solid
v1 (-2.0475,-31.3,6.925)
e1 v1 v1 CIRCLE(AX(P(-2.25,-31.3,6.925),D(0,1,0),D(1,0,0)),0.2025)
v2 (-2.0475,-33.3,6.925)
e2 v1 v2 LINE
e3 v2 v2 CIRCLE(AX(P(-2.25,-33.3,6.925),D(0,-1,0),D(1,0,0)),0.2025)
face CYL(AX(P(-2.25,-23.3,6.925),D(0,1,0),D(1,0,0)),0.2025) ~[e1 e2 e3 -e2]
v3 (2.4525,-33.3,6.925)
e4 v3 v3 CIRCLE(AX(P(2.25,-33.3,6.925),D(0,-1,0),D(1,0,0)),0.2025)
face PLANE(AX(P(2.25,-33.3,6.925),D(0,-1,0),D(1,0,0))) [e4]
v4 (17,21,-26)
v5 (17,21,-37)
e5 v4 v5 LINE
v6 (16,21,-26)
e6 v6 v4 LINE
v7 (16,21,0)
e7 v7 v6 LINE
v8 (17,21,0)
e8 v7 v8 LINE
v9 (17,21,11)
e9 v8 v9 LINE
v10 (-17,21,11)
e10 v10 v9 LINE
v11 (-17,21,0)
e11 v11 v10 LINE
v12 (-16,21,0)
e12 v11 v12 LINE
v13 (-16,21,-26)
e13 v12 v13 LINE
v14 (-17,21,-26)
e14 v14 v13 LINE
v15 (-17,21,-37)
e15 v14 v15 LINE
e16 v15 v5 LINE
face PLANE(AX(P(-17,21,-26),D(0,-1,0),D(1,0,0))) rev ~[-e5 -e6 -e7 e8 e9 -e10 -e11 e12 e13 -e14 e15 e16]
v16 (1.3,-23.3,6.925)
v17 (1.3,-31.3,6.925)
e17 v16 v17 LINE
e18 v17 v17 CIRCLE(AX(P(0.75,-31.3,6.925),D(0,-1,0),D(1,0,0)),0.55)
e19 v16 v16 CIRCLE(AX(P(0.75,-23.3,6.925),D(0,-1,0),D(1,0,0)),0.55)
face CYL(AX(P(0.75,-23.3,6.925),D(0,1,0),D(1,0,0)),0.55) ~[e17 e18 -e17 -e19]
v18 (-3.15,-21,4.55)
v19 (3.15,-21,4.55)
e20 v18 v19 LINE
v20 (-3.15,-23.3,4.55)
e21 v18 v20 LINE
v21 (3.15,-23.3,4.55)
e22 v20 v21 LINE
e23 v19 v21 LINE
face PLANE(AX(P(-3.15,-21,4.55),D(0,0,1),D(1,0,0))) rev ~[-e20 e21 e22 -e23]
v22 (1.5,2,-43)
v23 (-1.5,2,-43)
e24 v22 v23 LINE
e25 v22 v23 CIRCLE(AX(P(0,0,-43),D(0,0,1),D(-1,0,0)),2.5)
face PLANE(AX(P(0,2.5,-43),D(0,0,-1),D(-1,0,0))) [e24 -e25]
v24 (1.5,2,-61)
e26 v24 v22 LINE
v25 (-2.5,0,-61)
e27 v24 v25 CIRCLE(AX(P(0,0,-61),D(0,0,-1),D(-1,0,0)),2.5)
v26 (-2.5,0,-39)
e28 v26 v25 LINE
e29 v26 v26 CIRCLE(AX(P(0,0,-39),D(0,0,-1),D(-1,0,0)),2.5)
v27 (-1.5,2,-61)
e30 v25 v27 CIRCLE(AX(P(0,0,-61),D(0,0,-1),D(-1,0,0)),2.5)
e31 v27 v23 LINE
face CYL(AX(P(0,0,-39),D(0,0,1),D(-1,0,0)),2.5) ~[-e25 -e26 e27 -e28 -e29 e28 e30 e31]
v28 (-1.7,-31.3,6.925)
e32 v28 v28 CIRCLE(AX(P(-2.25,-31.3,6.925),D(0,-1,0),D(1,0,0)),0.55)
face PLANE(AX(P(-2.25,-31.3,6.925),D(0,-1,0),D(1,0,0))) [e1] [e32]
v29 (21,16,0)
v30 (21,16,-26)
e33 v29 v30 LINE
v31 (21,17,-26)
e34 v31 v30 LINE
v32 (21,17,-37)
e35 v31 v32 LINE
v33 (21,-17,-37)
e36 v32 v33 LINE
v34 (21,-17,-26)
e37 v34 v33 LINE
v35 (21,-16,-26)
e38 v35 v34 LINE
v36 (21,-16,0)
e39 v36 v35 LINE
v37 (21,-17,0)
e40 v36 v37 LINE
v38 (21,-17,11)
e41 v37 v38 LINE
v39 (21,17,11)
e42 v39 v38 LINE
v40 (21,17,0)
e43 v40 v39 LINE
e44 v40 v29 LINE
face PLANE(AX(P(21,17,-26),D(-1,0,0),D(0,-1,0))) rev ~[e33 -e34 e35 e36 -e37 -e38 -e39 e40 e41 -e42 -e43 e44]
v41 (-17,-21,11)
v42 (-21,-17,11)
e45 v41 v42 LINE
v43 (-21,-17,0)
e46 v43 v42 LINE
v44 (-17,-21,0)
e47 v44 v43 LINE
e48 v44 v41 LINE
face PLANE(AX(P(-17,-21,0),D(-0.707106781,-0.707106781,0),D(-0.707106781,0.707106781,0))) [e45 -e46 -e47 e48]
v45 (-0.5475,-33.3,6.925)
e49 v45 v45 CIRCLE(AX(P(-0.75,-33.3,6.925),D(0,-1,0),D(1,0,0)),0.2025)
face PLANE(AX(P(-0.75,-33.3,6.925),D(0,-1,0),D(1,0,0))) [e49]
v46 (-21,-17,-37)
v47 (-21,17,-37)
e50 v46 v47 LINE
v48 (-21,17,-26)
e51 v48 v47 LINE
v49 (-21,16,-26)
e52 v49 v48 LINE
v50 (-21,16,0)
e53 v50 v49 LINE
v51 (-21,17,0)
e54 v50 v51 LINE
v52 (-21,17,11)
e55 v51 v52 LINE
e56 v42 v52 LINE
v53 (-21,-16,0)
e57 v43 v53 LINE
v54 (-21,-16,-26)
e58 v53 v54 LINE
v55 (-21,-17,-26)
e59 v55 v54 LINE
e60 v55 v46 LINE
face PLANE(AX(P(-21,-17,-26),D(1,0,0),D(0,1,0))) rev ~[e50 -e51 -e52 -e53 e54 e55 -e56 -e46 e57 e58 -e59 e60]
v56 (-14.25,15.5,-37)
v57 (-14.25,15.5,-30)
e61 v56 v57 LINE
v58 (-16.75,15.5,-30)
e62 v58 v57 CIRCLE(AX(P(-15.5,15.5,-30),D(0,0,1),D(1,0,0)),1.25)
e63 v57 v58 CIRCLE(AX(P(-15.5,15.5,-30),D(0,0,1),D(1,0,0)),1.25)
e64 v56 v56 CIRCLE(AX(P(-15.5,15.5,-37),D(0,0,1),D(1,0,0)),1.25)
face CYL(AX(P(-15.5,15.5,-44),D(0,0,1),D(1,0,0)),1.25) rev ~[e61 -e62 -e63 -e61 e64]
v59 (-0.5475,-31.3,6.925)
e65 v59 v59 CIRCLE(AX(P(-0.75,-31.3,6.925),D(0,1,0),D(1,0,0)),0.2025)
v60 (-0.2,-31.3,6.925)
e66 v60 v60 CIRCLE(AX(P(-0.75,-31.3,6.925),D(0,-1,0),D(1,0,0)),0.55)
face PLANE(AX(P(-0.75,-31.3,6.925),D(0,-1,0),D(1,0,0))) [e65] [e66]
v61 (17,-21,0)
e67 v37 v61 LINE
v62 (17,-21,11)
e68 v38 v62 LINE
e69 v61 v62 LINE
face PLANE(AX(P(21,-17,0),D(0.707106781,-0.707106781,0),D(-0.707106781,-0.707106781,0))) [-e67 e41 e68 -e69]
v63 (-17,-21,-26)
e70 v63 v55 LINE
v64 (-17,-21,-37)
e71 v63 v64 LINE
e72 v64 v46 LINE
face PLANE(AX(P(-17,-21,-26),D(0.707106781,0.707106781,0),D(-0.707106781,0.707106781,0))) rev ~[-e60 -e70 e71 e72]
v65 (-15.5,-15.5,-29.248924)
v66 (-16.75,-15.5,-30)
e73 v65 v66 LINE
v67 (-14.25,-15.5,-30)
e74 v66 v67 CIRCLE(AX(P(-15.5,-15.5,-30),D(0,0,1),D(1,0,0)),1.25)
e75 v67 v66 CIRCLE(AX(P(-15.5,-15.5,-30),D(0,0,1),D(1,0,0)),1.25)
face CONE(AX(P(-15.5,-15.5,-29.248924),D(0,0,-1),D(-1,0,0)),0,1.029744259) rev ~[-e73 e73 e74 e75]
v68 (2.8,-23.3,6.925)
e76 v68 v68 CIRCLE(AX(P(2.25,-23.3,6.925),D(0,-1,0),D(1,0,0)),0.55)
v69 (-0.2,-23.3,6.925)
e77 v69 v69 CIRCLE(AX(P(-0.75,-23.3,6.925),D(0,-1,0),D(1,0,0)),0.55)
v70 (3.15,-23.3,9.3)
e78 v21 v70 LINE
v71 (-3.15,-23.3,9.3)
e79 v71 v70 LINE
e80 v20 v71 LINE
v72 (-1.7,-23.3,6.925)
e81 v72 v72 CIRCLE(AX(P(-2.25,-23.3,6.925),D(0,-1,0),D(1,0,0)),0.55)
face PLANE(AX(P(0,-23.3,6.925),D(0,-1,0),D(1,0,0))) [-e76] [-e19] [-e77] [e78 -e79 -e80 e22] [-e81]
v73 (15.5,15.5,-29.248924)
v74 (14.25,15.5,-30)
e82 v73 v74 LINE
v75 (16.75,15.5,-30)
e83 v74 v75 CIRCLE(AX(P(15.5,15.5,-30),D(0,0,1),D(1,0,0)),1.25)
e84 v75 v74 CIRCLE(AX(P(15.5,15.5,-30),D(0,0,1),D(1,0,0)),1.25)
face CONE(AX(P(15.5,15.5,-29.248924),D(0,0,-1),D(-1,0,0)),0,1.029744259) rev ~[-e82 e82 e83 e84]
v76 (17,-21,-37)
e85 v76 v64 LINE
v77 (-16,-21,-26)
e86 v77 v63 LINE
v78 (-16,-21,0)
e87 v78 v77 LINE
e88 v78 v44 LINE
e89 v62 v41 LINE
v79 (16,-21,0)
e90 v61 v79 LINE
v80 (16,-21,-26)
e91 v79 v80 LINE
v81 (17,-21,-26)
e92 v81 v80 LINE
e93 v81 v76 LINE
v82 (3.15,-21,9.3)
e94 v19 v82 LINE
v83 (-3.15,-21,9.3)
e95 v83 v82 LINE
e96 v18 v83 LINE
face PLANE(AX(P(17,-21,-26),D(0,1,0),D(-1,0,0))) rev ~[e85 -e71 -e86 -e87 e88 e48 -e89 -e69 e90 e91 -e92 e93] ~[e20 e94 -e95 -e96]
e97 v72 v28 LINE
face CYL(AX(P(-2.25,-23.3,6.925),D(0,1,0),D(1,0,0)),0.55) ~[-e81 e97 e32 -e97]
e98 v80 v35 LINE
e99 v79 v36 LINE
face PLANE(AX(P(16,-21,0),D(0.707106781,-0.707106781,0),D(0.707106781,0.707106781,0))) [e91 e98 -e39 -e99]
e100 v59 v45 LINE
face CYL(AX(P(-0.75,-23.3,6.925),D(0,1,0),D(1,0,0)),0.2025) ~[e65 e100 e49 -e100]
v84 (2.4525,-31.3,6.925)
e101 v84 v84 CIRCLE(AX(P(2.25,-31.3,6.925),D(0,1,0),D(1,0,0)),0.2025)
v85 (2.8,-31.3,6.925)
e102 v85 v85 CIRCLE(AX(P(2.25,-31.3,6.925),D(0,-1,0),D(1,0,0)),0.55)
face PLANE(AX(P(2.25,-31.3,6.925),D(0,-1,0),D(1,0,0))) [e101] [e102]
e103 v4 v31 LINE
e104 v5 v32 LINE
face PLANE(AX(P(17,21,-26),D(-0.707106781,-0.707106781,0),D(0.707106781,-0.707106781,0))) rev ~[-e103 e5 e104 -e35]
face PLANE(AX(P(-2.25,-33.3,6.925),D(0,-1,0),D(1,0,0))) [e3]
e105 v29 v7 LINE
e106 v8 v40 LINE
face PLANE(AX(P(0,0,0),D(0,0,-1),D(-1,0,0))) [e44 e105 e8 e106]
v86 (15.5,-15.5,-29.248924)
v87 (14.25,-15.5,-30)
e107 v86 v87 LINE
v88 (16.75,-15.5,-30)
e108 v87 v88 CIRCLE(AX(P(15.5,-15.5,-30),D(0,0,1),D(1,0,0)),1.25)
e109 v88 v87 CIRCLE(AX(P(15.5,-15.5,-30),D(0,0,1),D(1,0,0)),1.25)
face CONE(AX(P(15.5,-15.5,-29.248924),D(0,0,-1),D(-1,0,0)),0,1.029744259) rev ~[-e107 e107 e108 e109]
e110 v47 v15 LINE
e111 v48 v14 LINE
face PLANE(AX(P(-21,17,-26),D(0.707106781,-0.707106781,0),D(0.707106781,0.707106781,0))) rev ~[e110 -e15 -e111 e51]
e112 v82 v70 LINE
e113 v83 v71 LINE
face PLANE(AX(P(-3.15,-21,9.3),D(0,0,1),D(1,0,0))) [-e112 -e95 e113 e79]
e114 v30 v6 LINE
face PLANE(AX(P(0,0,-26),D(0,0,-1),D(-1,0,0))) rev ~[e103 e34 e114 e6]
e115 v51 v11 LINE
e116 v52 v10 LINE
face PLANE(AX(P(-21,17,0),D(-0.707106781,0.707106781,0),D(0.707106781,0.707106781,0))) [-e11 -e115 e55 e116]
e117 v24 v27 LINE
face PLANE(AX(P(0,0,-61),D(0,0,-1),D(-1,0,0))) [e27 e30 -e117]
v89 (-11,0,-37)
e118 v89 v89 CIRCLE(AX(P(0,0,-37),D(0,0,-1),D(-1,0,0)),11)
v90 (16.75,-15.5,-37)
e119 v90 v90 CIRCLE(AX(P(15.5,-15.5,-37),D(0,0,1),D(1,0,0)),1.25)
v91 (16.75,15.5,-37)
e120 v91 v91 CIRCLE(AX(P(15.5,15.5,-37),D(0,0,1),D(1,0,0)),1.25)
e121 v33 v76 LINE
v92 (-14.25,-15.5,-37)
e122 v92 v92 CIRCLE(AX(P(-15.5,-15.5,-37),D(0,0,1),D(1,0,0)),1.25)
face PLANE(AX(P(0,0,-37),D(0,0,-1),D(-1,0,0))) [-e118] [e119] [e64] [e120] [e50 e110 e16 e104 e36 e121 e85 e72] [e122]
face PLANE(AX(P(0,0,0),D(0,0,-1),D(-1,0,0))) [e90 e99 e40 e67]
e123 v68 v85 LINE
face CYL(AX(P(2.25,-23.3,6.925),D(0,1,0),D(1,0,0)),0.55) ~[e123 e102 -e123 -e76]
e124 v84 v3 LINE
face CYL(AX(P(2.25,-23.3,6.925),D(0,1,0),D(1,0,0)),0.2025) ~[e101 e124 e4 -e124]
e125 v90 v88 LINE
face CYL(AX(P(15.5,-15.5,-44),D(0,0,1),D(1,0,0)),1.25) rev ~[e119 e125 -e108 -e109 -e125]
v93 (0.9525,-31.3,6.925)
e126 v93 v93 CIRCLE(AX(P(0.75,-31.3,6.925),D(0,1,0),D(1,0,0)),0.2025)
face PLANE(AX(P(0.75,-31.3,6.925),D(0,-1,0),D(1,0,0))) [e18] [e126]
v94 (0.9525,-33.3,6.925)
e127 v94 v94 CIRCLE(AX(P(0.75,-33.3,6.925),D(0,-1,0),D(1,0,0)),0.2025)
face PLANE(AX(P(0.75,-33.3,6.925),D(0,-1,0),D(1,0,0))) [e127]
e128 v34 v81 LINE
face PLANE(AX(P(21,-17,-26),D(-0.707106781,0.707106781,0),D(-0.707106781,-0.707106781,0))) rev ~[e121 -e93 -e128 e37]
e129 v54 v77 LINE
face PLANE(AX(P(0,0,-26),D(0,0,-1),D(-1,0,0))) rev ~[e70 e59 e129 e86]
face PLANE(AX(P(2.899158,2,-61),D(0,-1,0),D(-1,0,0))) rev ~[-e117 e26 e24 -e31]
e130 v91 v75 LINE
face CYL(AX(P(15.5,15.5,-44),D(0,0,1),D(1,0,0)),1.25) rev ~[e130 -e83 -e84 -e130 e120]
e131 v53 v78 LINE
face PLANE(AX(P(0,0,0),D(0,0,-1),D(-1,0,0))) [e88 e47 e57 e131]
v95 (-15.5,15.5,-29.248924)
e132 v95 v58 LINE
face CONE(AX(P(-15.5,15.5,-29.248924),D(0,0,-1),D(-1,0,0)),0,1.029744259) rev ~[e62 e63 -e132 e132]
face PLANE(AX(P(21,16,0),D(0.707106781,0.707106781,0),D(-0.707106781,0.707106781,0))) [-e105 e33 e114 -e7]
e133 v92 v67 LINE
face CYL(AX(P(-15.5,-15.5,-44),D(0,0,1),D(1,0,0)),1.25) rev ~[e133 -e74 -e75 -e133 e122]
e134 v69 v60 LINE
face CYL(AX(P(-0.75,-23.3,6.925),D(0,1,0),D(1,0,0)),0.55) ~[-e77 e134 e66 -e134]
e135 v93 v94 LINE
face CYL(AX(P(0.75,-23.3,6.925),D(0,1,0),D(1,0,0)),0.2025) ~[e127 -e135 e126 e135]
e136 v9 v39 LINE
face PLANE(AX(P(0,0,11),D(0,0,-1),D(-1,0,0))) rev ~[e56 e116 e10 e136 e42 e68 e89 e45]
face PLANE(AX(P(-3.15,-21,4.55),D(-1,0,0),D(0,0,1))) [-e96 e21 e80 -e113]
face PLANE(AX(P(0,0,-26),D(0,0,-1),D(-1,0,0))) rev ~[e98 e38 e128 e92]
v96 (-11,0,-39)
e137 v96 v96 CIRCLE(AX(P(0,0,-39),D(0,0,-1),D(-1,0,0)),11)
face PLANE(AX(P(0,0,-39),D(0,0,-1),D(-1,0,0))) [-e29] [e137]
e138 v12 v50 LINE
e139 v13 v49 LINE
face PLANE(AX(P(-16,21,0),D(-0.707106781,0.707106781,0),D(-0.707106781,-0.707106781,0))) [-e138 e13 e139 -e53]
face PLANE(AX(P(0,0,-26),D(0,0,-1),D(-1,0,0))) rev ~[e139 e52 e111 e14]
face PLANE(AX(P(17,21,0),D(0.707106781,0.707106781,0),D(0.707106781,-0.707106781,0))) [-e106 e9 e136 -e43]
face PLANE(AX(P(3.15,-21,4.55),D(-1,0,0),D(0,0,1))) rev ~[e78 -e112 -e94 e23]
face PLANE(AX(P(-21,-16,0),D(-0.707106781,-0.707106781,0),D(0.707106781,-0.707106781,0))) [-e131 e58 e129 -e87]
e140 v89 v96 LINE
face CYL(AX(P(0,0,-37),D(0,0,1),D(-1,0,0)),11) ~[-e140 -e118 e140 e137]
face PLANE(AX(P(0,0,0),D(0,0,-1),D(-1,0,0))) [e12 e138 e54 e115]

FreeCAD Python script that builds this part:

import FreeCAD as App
import Part
import Sketcher

V = App.Vector


def add_polygon(sketch, points):
    """Adds a closed chain of lines whose ends are joined by coincident constraints."""
    first, n = sketch.GeometryCount, len(points)
    for a, b in zip(points, points[1:] + points[:1]):
        sketch.addGeometry(Part.LineSegment(App.Vector(*a, 0), App.Vector(*b, 0)), False)
    for i in range(n):
        sketch.addConstraint(Sketcher.Constraint("Coincident", first + i, 2, first + (i + 1) % n, 1))

doc = App.newDocument("Part")
body = doc.addObject("PartDesign::Body", "Body")

sketch1 = body.newObject("Sketcher::SketchObject", "Sketch")
sketch1.AttachmentSupport = (doc.getObject("XY_Plane"), [""])
sketch1.MapMode = "FlatFace"
add_polygon(sketch1, [(21, 17), (17, 21), (-17, 21), (-21, 17), (-21, -17), (-17, -21), (17, -21), (21, -17)])
sketch1.addConstraint([
    Sketcher.Constraint("Horizontal", 1),
    Sketcher.Constraint("Vertical", 3),
    Sketcher.Constraint("Horizontal", 5),
    Sketcher.Constraint("Vertical", 7),
    Sketcher.Constraint("Symmetric", 0, 2, 4, 2, -1, 1),
    Sketcher.Constraint("Symmetric", 2, 2, 6, 2, -1, 1),
    Sketcher.Constraint("Perpendicular", 0, 2),
    Sketcher.Constraint("Perpendicular", 2, 4),
    Sketcher.Constraint("Perpendicular", 4, 6),
    Sketcher.Constraint("Horizontal", 3, 2, 6, 2),
    Sketcher.Constraint("Vertical", 1, 2, 4, 2),
    Sketcher.Constraint("Equal", 5, 3),
    Sketcher.Constraint("DistanceX", 1, 2, 1, 1, 34.0),
    Sketcher.Constraint("DistanceY", -1, 1, 0, 2, 21.0),
])
pad1 = body.newObject("PartDesign::Pad", "Pad")
pad1.Profile = sketch1
pad1.Length = 11

sketch2 = body.newObject("Sketcher::SketchObject", "Sketch001")
sketch2.AttachmentSupport = (doc.getObject("XY_Plane"), [""])
sketch2.MapMode = "FlatFace"
add_polygon(sketch2, [(-16, 21), (16, 21), (21, 16), (21, -16), (16, -21), (-16, -21), (-21, -16), (-21, 16)])
sketch2.addConstraint([
    Sketcher.Constraint("Horizontal", 0),
    Sketcher.Constraint("Vertical", 2),
    Sketcher.Constraint("Horizontal", 4),
    Sketcher.Constraint("Vertical", 6),
    Sketcher.Constraint("Symmetric", 0, 2, 4, 2, -1, 1),
    Sketcher.Constraint("Symmetric", 1, 2, 5, 2, -1, 1),
    Sketcher.Constraint("Perpendicular", 1, 3),
    Sketcher.Constraint("Perpendicular", 5, 7),
    Sketcher.Constraint("Horizontal", 2, 2, 5, 2),
    Sketcher.Constraint("Horizontal", 1, 2, 6, 2),
    Sketcher.Constraint("Vertical", 0, 2, 3, 2),
    Sketcher.Constraint("Equal", 4, 2),
    Sketcher.Constraint("DistanceX", 0, 1, 0, 2, 32.0),
    Sketcher.Constraint("DistanceY", -1, 1, 0, 2, 21.0),
])
pad2 = body.newObject("PartDesign::Pad", "Pad001")
pad2.Profile = sketch2
pad2.Length = 26
pad2.Reversed = True

sketch3 = body.newObject("Sketcher::SketchObject", "Sketch002")
sketch3.AttachmentSupport = (doc.getObject("XY_Plane"), [""])
sketch3.MapMode = "FlatFace"
sketch3.AttachmentOffset = App.Placement(V(0, 0, -26), App.Rotation())
add_polygon(sketch3, [(17, 21), (21, 17), (21, -17), (17, -21), (-17, -21), (-21, -17), (-21, 17), (-17, 21)])
sketch3.addConstraint([
    Sketcher.Constraint("Vertical", 1),
    Sketcher.Constraint("Horizontal", 3),
    Sketcher.Constraint("Vertical", 5),
    Sketcher.Constraint("Horizontal", 7),
    Sketcher.Constraint("Symmetric", 0, 2, 4, 2, -1, 1),
    Sketcher.Constraint("Symmetric", 2, 2, 6, 2, -1, 1),
    Sketcher.Constraint("Perpendicular", 0, 2),
    Sketcher.Constraint("Perpendicular", 2, 4),
    Sketcher.Constraint("Perpendicular", 4, 6),
    Sketcher.Constraint("Horizontal", 1, 2, 4, 2),
    Sketcher.Constraint("Vertical", 3, 2, 6, 2),
    Sketcher.Constraint("Equal", 7, 1),
    Sketcher.Constraint("DistanceX", 3, 2, 3, 1, 34.0),
    Sketcher.Constraint("DistanceX", -1, 1, 0, 2, 21.0),
])
pad3 = body.newObject("PartDesign::Pad", "Pad002")
pad3.Profile = sketch3
pad3.Length = 11
pad3.Reversed = True

sketch4 = body.newObject("Sketcher::SketchObject", "Sketch003")
sketch4.AttachmentSupport = (doc.getObject("XY_Plane"), [""])
sketch4.MapMode = "FlatFace"
sketch4.AttachmentOffset = App.Placement(V(0, 0, -37), App.Rotation())
sketch4.addGeometry(Part.Circle(V(0, 0, 0), V(0, 0, 1), 11), False)
sketch4.addConstraint([
    Sketcher.Constraint("Coincident", 0, 3, -1, 1),
    Sketcher.Constraint("Diameter", 0, 22.0),
])
pad4 = body.newObject("PartDesign::Pad", "Pad003")
pad4.Profile = sketch4
pad4.Length = 2
pad4.Reversed = True

sketch5 = body.newObject("Sketcher::SketchObject", "Sketch004")
sketch5.AttachmentSupport = (doc.getObject("XY_Plane"), [""])
sketch5.MapMode = "FlatFace"
sketch5.AttachmentOffset = App.Placement(V(0, 0, -39), App.Rotation())
sketch5.addGeometry(Part.Circle(V(0, 0, 0), V(0, 0, 1), 2.5), False)
sketch5.addConstraint([
    Sketcher.Constraint("Coincident", 0, 3, -1, 1),
    Sketcher.Constraint("Diameter", 0, 5.0),
])
pad5 = body.newObject("PartDesign::Pad", "Pad004")
pad5.Profile = sketch5
pad5.Length = 22
pad5.Reversed = True

sketch6 = body.newObject("Sketcher::SketchObject", "Sketch005")
sketch6.AttachmentSupport = (doc.getObject("XY_Plane"), [""])
sketch6.MapMode = "FlatFace"
sketch6.AttachmentOffset = App.Placement(V(0, 0, -61), App.Rotation())
add_polygon(sketch6, [(2.9, 3), (2.9, 2), (-2.9, 2), (-2.9, 3)])
sketch6.addConstraint([
    Sketcher.Constraint("Vertical", 0),
    Sketcher.Constraint("Horizontal", 1),
    Sketcher.Constraint("Vertical", 2),
    Sketcher.Constraint("Horizontal", 3),
    Sketcher.Constraint("DistanceY", 0, 2, 0, 1, 1.0),
    Sketcher.Constraint("DistanceY", -1, 1, 0, 2, 2.0),
    Sketcher.Constraint("DistanceX", 1, 2, 1, 1, 5.798316),
    Sketcher.Constraint("DistanceX", -1, 1, 0, 2, 2.899158),
])
pocket1 = body.newObject("PartDesign::Pocket", "Pocket")
pocket1.Profile = sketch6
pocket1.Length = 18
pocket1.Reversed = True

sketch7 = body.newObject("Sketcher::SketchObject", "Sketch006")
sketch7.AttachmentSupport = (doc.getObject("XY_Plane"), [""])
sketch7.MapMode = "FlatFace"
sketch7.AttachmentOffset = App.Placement(V(0, 0, -37), App.Rotation())
sketch7.addGeometry([
    Part.Circle(V(15.5, 15.5, 0), V(0, 0, 1), 1.2),
    Part.Circle(V(-15.5, 15.5, 0), V(0, 0, 1), 1.2),
    Part.Circle(V(-15.5, -15.5, 0), V(0, 0, 1), 1.2),
    Part.Circle(V(15.5, -15.5, 0), V(0, 0, 1), 1.2),
], False)
sketch7.addConstraint([
    Sketcher.Constraint("Equal", 0, 1),
    Sketcher.Constraint("Equal", 1, 2),
    Sketcher.Constraint("Equal", 2, 3),
    Sketcher.Constraint("Symmetric", 0, 3, 2, 3, -1, 1),
    Sketcher.Constraint("Symmetric", 1, 3, 3, 3, -1, 1),
    Sketcher.Constraint("Symmetric", 0, 3, 1, 3, -2),
    Sketcher.Constraint("Diameter", 0, 2.5),
    Sketcher.Constraint("DistanceX", 1, 3, 0, 3, 31.0),
    Sketcher.Constraint("DistanceY", 2, 3, 1, 3, 31.0),
])
doc.recompute()
hole = body.newObject("PartDesign::Hole", "Hole")
hole.Profile = sketch7
hole.ThreadType = "None"
hole.Diameter = 2.5
hole.DepthType = "Dimension"
hole.Depth = 7
hole.DrillPoint = "Angled"
hole.DrillPointAngle = 118
hole.Reversed = True

sketch8 = body.newObject("Sketcher::SketchObject", "Sketch007")
sketch8.AttachmentSupport = (doc.getObject("XZ_Plane"), [""])
sketch8.MapMode = "FlatFace"
sketch8.AttachmentOffset = App.Placement(V(0, 0, 21), App.Rotation())
add_polygon(sketch8, [(-3.1, 9.3), (-3.1, 4.5), (3.1, 4.5), (3.1, 9.3)])
sketch8.addConstraint([
    Sketcher.Constraint("Vertical", 0),
    Sketcher.Constraint("Horizontal", 1),
    Sketcher.Constraint("Vertical", 2),
    Sketcher.Constraint("Horizontal", 3),
    Sketcher.Constraint("DistanceX", 1, 1, 1, 2, 6.3),
    Sketcher.Constraint("DistanceY", 0, 2, 0, 1, 4.75),
    Sketcher.Constraint("DistanceY", -1, 1, 2, 2, 9.3),
    Sketcher.Constraint("DistanceX", 0, 2, -1, 1, 3.15),
])
pad6 = body.newObject("PartDesign::Pad", "Pad005")
pad6.Profile = sketch8
pad6.Length = 2.3

sketch9 = body.newObject("Sketcher::SketchObject", "Sketch008")
sketch9.AttachmentSupport = (doc.getObject("XZ_Plane"), [""])
sketch9.MapMode = "FlatFace"
sketch9.AttachmentOffset = App.Placement(V(0, 0, 23.3), App.Rotation())
sketch9.addGeometry([
    Part.Circle(V(-2.25, 6.92, 0), V(0, 0, 1), 0.2),
    Part.Circle(V(-0.75, 6.92, 0), V(0, 0, 1), 0.2),
    Part.Circle(V(0.75, 6.92, 0), V(0, 0, 1), 0.2),
    Part.Circle(V(2.25, 6.92, 0), V(0, 0, 1), 0.2),
], False)
sketch9.addConstraint([
    Sketcher.Constraint("Equal", 0, 1),
    Sketcher.Constraint("Equal", 1, 2),
    Sketcher.Constraint("Equal", 2, 3),
    Sketcher.Constraint("Symmetric", 1, 3, 2, 3, -2),
    Sketcher.Constraint("Symmetric", 0, 3, 3, 3, -2),
    Sketcher.Constraint("Horizontal", 0, 3, 1, 3),
    Sketcher.Constraint("Diameter", 0, 0.405),
    Sketcher.Constraint("DistanceX", 0, 3, 2, 3, 3.0),
    Sketcher.Constraint("DistanceX", 0, 3, 1, 3, 1.5),
    Sketcher.Constraint("DistanceY", -1, 1, 0, 3, 6.925),
])
pad7 = body.newObject("PartDesign::Pad", "Pad006")
pad7.Profile = sketch9
pad7.Length = 10

sketch10 = body.newObject("Sketcher::SketchObject", "Sketch009")
sketch10.AttachmentSupport = (doc.getObject("XZ_Plane"), [""])
sketch10.MapMode = "FlatFace"
sketch10.AttachmentOffset = App.Placement(V(0, 0, 23.3), App.Rotation())
sketch10.addGeometry([
    Part.Circle(V(-2.2, 6.9, 0), V(0, 0, 1), 0.6),
    Part.Circle(V(-0.8, 6.9, 0), V(0, 0, 1), 0.6),
    Part.Circle(V(0.8, 6.9, 0), V(0, 0, 1), 0.6),
    Part.Circle(V(2.2, 6.9, 0), V(0, 0, 1), 0.6),
], False)
sketch10.addConstraint([
    Sketcher.Constraint("Equal", 0, 1),
    Sketcher.Constraint("Equal", 1, 2),
    Sketcher.Constraint("Equal", 2, 3),
    Sketcher.Constraint("Symmetric", 1, 3, 2, 3, -2),
    Sketcher.Constraint("Symmetric", 0, 3, 3, 3, -2),
    Sketcher.Constraint("Horizontal", 0, 3, 1, 3),
    Sketcher.Constraint("Diameter", 0, 1.1),
    Sketcher.Constraint("DistanceX", 0, 3, 2, 3, 3.0),
    Sketcher.Constraint("DistanceX", 0, 3, 1, 3, 1.5),
    Sketcher.Constraint("DistanceY", -1, 1, 0, 3, 6.925),
])
pad8 = body.newObject("PartDesign::Pad", "Pad007")
pad8.Profile = sketch10
pad8.Length = 8

doc.recompute()
